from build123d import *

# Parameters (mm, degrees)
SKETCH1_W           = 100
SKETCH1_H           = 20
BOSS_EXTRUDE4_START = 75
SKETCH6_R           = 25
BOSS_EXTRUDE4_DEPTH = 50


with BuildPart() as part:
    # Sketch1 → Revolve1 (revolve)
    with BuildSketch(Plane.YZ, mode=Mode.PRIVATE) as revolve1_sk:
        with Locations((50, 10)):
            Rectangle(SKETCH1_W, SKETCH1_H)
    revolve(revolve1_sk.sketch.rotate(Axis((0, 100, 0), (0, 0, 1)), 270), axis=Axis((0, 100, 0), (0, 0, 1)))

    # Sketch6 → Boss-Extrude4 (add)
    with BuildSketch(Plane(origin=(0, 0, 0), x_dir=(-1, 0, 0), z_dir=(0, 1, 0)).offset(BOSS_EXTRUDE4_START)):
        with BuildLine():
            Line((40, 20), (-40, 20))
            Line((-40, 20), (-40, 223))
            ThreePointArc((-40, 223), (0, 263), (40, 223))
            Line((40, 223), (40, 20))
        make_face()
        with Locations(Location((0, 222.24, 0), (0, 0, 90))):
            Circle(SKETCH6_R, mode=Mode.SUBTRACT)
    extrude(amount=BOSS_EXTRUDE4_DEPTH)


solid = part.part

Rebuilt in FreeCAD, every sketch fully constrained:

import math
import FreeCAD as App
import Part
import Sketcher
from FreeCAD import Vector

doc = App.newDocument("Part")
params = doc.addObject("Spreadsheet::Sheet", "Params")
for row, (alias, value) in enumerate([
    ("sketch1_width", "100 mm"),
    ("sketch1_height", "20 mm"),
    ("revolution_angle", "360 deg"),
    ("sketch2_diameter", "50 mm"),
    ("sketch2_radius", "40 mm"),
    ("sketch2_height", "203 mm"),
    ("pad1_length", "50 mm"),
], start=1):
    params.set(f"A{row}", alias)
    params.set(f"B{row}", "=" + value)
    params.setAlias(f"B{row}", alias)

body = doc.addObject("PartDesign::Body", "Body")

sketch1 = body.newObject("Sketcher::SketchObject", "Sketch")
sketch1.AttachmentSupport = (doc.getObject("YZ_Plane"), [""])
sketch1.MapMode = "FlatFace"
sketch1.addGeometry([
    Part.LineSegment(Vector(0, 20, 0), Vector(0, 0, 0)),
    Part.LineSegment(Vector(0, 0, 0), Vector(100, 0, 0)),
    Part.LineSegment(Vector(100, 0, 0), Vector(100, 20, 0)),
    Part.LineSegment(Vector(100, 20, 0), Vector(0, 20, 0)),
], False)
sketch1.addGeometry(Part.LineSegment(Vector(100, 0, 0), Vector(100, 20, 0)), True)
sketch1.addConstraint([
    Sketcher.Constraint("Coincident", 0, 2, 1, 1),
    Sketcher.Constraint("Coincident", 1, 2, 2, 1),
    Sketcher.Constraint("Coincident", 2, 2, 3, 1),
    Sketcher.Constraint("Coincident", 3, 2, 0, 1),
    Sketcher.Constraint("Vertical", 0),
    Sketcher.Constraint("Horizontal", 1),
    Sketcher.Constraint("Vertical", 2),
    Sketcher.Constraint("Horizontal", 3),
    Sketcher.Constraint("Vertical", 4),
    Sketcher.Constraint("Coincident", 0, 2, -1, 1),
    Sketcher.Constraint("Coincident", 4, 1, 1, 2),
    Sketcher.Constraint("Horizontal", 3, 2, 4, 2),
    Sketcher.Constraint("DistanceX", 1, 1, 1, 2, 100.0),
    Sketcher.Constraint("DistanceY", 0, 2, 0, 1, 20.0),
])
sketch1.setExpression("Constraints[12]", "Params.sketch1_width")
sketch1.setExpression("Constraints[13]", "Params.sketch1_height")
revolution = body.newObject("PartDesign::Revolution", "Revolution")
revolution.Profile = sketch1
revolution.ReferenceAxis = (sketch1, ["Axis0"])
revolution.setExpression("Angle", "Params.revolution_angle")

sketch2 = body.newObject("Sketcher::SketchObject", "Sketch001")
sketch2.AttachmentSupport = (doc.getObject("XZ_Plane"), [""])
sketch2.MapMode = "FlatFace"
sketch2.AttachmentOffset = App.Placement(Vector(0, 0, -75), App.Rotation())
sketch2.addGeometry([
    Part.LineSegment(Vector(40, 20, 0), Vector(-40, 20, 0)),
    Part.LineSegment(Vector(-40, 20, 0), Vector(-40, 223, 0)),
    Part.ArcOfCircle(Part.Circle(Vector(0, 223, 0), Vector(0, 0, 1), 40), math.radians(0), math.radians(180)),
    Part.LineSegment(Vector(40, 223, 0), Vector(40, 20, 0)),
    Part.Circle(Vector(0, 222, 0), Vector(0, 0, 1), 25),
], False)
sketch2.addConstraint([
    Sketcher.Constraint("Coincident", 0, 2, 1, 1),
    Sketcher.Constraint("Tangent", 1, 2, 2, 2),
    Sketcher.Constraint("Tangent", 2, 1, 3, 1),
    Sketcher.Constraint("Coincident", 3, 2, 0, 1),
    Sketcher.Constraint("Horizontal", 0),
    Sketcher.Constraint("Vertical", 1),
    Sketcher.Constraint("Vertical", 3),
    Sketcher.Constraint("PointOnObject", 2, 3, -2),
    Sketcher.Constraint("PointOnObject", 4, 3, -2),
    Sketcher.Constraint("Diameter", 4, 50.0),
    Sketcher.Constraint("Radius", 2, 40.0),
    Sketcher.Constraint("DistanceY", 1, 1, 1, 2, 203.0),
    Sketcher.Constraint("DistanceY", -1, 1, 2, 3, 223.0),
    Sketcher.Constraint("DistanceY", -1, 1, 4, 3, 222.24),
])
sketch2.setExpression("Constraints[9]", "Params.sketch2_diameter")
sketch2.setExpression("Constraints[10]", "Params.sketch2_radius")
sketch2.setExpression("Constraints[11]", "Params.sketch2_height")
pad1 = body.newObject("PartDesign::Pad", "Pad")
pad1.Profile = sketch2
pad1.setExpression("Length", "Params.pad1_length")
pad1.Reversed = True

doc.recompute()
